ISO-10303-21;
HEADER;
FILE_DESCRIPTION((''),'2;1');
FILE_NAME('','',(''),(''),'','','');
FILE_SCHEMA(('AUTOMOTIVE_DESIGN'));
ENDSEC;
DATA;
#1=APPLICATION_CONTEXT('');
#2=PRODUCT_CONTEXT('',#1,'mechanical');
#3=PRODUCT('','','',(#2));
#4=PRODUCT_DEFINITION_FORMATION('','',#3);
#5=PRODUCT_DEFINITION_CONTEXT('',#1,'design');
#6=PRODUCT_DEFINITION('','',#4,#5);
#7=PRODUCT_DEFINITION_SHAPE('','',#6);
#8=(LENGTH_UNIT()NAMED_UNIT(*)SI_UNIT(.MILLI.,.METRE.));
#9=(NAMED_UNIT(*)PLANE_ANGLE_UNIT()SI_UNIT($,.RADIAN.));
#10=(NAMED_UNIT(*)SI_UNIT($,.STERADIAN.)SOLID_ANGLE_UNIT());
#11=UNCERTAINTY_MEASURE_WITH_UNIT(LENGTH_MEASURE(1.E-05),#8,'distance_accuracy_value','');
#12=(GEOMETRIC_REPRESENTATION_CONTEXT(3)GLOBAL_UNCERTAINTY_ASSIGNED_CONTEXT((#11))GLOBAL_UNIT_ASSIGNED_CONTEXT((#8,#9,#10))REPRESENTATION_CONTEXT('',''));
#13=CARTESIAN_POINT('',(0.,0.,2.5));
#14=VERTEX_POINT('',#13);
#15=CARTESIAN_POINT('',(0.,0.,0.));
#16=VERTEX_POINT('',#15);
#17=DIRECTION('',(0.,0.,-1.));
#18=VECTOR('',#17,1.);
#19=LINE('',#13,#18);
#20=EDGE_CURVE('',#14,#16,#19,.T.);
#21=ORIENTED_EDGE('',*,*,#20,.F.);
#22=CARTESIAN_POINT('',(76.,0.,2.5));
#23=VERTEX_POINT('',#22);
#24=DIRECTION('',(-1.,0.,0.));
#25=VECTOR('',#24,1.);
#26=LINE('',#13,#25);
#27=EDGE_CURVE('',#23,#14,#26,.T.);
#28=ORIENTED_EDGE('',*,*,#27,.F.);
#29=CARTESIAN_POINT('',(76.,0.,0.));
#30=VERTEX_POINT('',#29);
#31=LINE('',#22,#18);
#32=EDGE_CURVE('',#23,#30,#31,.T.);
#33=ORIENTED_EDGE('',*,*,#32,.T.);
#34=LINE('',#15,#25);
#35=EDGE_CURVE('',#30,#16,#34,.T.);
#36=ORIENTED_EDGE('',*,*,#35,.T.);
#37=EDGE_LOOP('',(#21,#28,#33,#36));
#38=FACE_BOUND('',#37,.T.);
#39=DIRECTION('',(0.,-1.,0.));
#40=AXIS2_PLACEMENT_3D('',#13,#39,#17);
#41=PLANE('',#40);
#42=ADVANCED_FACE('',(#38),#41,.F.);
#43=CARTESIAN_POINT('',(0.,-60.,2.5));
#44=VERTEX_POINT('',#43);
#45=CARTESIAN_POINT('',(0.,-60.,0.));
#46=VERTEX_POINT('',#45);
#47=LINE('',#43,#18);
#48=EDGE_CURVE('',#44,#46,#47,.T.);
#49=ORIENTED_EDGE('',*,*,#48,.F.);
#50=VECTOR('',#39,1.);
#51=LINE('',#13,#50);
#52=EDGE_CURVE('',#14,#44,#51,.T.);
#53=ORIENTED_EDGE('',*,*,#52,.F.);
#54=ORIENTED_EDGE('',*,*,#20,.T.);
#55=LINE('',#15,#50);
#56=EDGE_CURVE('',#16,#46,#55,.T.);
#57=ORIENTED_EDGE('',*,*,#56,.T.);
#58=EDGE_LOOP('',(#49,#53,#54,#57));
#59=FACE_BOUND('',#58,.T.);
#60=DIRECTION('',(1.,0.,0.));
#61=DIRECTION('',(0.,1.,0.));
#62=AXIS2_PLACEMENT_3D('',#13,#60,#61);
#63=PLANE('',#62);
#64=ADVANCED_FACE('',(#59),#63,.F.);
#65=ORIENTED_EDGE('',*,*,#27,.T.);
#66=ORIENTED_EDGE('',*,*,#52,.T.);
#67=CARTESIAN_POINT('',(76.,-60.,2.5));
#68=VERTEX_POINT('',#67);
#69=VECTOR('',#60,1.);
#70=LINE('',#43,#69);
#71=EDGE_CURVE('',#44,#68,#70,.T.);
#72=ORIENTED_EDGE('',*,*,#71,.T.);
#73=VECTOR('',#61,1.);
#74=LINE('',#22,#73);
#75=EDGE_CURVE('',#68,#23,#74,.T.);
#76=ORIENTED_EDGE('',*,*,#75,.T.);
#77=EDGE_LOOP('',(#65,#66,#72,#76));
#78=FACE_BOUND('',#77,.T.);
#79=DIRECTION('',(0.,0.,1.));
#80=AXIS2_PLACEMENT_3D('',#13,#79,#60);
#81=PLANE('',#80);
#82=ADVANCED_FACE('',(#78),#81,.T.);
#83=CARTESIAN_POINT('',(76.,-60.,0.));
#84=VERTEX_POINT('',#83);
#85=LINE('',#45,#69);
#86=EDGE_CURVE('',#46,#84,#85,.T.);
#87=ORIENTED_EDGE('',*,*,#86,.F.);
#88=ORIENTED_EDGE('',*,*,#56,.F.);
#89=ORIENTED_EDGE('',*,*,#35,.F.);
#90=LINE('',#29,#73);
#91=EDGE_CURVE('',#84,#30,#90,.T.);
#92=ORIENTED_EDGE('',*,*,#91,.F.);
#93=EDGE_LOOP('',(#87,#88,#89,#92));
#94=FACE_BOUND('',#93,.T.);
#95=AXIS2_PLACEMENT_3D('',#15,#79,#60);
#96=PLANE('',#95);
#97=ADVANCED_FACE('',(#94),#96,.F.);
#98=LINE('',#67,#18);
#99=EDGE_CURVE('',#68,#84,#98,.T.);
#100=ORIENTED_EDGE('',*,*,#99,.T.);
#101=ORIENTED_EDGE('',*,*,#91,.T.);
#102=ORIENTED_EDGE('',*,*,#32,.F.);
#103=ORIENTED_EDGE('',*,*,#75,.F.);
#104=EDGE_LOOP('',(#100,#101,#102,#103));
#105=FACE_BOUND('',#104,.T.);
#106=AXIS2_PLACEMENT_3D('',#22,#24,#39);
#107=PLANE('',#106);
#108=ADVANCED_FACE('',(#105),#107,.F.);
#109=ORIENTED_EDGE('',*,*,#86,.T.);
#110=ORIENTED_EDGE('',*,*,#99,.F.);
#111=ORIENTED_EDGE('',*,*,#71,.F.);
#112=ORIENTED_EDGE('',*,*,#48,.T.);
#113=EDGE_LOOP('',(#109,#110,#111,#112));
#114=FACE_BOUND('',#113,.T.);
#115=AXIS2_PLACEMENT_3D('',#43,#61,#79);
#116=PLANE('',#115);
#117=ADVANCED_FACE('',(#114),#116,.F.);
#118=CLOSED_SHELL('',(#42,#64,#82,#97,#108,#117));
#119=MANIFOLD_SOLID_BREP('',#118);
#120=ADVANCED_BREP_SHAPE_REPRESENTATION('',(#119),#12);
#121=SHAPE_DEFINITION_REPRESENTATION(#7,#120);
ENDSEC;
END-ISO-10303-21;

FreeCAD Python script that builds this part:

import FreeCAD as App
import Part
import Sketcher

doc = App.newDocument("Part")
body = doc.addObject("PartDesign::Body", "Body")

sketch1 = body.newObject("Sketcher::SketchObject", "Sketch")
sketch1.AttachmentSupport = (doc.getObject("XY_Plane"), [""])
sketch1.MapMode = "FlatFace"
sketch1.addGeometry(Part.LineSegment(App.Vector(0, 0, 0), App.Vector(0, -60, 0)), False)
sketch1.addGeometry(Part.LineSegment(App.Vector(0, -60, 0), App.Vector(76, -60, 0)), False)
sketch1.addGeometry(Part.LineSegment(App.Vector(76, -60, 0), App.Vector(76, 0, 0)), False)
sketch1.addGeometry(Part.LineSegment(App.Vector(76, 0, 0), App.Vector(0, 0, 0)), False)
sketch1.addConstraint(Sketcher.Constraint("Coincident", 0, 2, 1, 1))
sketch1.addConstraint(Sketcher.Constraint("Coincident", 1, 2, 2, 1))
sketch1.addConstraint(Sketcher.Constraint("Coincident", 2, 2, 3, 1))
sketch1.addConstraint(Sketcher.Constraint("Coincident", 3, 2, 0, 1))
sketch1.addConstraint(Sketcher.Constraint("Vertical", 0))
sketch1.addConstraint(Sketcher.Constraint("Horizontal", 1))
sketch1.addConstraint(Sketcher.Constraint("Vertical", 2))
sketch1.addConstraint(Sketcher.Constraint("Horizontal", 3))
sketch1.addConstraint(Sketcher.Constraint("Coincident", 3, 2, -1, 1))
sketch1.addConstraint(Sketcher.Constraint("DistanceX", 1, 1, 1, 2, 76.0))
sketch1.addConstraint(Sketcher.Constraint("DistanceY", 0, 2, 0, 1, 60.0))
pad1 = body.newObject("PartDesign::Pad", "Pad")
pad1.Profile = sketch1
pad1.Length = 2.5

doc.recompute()
